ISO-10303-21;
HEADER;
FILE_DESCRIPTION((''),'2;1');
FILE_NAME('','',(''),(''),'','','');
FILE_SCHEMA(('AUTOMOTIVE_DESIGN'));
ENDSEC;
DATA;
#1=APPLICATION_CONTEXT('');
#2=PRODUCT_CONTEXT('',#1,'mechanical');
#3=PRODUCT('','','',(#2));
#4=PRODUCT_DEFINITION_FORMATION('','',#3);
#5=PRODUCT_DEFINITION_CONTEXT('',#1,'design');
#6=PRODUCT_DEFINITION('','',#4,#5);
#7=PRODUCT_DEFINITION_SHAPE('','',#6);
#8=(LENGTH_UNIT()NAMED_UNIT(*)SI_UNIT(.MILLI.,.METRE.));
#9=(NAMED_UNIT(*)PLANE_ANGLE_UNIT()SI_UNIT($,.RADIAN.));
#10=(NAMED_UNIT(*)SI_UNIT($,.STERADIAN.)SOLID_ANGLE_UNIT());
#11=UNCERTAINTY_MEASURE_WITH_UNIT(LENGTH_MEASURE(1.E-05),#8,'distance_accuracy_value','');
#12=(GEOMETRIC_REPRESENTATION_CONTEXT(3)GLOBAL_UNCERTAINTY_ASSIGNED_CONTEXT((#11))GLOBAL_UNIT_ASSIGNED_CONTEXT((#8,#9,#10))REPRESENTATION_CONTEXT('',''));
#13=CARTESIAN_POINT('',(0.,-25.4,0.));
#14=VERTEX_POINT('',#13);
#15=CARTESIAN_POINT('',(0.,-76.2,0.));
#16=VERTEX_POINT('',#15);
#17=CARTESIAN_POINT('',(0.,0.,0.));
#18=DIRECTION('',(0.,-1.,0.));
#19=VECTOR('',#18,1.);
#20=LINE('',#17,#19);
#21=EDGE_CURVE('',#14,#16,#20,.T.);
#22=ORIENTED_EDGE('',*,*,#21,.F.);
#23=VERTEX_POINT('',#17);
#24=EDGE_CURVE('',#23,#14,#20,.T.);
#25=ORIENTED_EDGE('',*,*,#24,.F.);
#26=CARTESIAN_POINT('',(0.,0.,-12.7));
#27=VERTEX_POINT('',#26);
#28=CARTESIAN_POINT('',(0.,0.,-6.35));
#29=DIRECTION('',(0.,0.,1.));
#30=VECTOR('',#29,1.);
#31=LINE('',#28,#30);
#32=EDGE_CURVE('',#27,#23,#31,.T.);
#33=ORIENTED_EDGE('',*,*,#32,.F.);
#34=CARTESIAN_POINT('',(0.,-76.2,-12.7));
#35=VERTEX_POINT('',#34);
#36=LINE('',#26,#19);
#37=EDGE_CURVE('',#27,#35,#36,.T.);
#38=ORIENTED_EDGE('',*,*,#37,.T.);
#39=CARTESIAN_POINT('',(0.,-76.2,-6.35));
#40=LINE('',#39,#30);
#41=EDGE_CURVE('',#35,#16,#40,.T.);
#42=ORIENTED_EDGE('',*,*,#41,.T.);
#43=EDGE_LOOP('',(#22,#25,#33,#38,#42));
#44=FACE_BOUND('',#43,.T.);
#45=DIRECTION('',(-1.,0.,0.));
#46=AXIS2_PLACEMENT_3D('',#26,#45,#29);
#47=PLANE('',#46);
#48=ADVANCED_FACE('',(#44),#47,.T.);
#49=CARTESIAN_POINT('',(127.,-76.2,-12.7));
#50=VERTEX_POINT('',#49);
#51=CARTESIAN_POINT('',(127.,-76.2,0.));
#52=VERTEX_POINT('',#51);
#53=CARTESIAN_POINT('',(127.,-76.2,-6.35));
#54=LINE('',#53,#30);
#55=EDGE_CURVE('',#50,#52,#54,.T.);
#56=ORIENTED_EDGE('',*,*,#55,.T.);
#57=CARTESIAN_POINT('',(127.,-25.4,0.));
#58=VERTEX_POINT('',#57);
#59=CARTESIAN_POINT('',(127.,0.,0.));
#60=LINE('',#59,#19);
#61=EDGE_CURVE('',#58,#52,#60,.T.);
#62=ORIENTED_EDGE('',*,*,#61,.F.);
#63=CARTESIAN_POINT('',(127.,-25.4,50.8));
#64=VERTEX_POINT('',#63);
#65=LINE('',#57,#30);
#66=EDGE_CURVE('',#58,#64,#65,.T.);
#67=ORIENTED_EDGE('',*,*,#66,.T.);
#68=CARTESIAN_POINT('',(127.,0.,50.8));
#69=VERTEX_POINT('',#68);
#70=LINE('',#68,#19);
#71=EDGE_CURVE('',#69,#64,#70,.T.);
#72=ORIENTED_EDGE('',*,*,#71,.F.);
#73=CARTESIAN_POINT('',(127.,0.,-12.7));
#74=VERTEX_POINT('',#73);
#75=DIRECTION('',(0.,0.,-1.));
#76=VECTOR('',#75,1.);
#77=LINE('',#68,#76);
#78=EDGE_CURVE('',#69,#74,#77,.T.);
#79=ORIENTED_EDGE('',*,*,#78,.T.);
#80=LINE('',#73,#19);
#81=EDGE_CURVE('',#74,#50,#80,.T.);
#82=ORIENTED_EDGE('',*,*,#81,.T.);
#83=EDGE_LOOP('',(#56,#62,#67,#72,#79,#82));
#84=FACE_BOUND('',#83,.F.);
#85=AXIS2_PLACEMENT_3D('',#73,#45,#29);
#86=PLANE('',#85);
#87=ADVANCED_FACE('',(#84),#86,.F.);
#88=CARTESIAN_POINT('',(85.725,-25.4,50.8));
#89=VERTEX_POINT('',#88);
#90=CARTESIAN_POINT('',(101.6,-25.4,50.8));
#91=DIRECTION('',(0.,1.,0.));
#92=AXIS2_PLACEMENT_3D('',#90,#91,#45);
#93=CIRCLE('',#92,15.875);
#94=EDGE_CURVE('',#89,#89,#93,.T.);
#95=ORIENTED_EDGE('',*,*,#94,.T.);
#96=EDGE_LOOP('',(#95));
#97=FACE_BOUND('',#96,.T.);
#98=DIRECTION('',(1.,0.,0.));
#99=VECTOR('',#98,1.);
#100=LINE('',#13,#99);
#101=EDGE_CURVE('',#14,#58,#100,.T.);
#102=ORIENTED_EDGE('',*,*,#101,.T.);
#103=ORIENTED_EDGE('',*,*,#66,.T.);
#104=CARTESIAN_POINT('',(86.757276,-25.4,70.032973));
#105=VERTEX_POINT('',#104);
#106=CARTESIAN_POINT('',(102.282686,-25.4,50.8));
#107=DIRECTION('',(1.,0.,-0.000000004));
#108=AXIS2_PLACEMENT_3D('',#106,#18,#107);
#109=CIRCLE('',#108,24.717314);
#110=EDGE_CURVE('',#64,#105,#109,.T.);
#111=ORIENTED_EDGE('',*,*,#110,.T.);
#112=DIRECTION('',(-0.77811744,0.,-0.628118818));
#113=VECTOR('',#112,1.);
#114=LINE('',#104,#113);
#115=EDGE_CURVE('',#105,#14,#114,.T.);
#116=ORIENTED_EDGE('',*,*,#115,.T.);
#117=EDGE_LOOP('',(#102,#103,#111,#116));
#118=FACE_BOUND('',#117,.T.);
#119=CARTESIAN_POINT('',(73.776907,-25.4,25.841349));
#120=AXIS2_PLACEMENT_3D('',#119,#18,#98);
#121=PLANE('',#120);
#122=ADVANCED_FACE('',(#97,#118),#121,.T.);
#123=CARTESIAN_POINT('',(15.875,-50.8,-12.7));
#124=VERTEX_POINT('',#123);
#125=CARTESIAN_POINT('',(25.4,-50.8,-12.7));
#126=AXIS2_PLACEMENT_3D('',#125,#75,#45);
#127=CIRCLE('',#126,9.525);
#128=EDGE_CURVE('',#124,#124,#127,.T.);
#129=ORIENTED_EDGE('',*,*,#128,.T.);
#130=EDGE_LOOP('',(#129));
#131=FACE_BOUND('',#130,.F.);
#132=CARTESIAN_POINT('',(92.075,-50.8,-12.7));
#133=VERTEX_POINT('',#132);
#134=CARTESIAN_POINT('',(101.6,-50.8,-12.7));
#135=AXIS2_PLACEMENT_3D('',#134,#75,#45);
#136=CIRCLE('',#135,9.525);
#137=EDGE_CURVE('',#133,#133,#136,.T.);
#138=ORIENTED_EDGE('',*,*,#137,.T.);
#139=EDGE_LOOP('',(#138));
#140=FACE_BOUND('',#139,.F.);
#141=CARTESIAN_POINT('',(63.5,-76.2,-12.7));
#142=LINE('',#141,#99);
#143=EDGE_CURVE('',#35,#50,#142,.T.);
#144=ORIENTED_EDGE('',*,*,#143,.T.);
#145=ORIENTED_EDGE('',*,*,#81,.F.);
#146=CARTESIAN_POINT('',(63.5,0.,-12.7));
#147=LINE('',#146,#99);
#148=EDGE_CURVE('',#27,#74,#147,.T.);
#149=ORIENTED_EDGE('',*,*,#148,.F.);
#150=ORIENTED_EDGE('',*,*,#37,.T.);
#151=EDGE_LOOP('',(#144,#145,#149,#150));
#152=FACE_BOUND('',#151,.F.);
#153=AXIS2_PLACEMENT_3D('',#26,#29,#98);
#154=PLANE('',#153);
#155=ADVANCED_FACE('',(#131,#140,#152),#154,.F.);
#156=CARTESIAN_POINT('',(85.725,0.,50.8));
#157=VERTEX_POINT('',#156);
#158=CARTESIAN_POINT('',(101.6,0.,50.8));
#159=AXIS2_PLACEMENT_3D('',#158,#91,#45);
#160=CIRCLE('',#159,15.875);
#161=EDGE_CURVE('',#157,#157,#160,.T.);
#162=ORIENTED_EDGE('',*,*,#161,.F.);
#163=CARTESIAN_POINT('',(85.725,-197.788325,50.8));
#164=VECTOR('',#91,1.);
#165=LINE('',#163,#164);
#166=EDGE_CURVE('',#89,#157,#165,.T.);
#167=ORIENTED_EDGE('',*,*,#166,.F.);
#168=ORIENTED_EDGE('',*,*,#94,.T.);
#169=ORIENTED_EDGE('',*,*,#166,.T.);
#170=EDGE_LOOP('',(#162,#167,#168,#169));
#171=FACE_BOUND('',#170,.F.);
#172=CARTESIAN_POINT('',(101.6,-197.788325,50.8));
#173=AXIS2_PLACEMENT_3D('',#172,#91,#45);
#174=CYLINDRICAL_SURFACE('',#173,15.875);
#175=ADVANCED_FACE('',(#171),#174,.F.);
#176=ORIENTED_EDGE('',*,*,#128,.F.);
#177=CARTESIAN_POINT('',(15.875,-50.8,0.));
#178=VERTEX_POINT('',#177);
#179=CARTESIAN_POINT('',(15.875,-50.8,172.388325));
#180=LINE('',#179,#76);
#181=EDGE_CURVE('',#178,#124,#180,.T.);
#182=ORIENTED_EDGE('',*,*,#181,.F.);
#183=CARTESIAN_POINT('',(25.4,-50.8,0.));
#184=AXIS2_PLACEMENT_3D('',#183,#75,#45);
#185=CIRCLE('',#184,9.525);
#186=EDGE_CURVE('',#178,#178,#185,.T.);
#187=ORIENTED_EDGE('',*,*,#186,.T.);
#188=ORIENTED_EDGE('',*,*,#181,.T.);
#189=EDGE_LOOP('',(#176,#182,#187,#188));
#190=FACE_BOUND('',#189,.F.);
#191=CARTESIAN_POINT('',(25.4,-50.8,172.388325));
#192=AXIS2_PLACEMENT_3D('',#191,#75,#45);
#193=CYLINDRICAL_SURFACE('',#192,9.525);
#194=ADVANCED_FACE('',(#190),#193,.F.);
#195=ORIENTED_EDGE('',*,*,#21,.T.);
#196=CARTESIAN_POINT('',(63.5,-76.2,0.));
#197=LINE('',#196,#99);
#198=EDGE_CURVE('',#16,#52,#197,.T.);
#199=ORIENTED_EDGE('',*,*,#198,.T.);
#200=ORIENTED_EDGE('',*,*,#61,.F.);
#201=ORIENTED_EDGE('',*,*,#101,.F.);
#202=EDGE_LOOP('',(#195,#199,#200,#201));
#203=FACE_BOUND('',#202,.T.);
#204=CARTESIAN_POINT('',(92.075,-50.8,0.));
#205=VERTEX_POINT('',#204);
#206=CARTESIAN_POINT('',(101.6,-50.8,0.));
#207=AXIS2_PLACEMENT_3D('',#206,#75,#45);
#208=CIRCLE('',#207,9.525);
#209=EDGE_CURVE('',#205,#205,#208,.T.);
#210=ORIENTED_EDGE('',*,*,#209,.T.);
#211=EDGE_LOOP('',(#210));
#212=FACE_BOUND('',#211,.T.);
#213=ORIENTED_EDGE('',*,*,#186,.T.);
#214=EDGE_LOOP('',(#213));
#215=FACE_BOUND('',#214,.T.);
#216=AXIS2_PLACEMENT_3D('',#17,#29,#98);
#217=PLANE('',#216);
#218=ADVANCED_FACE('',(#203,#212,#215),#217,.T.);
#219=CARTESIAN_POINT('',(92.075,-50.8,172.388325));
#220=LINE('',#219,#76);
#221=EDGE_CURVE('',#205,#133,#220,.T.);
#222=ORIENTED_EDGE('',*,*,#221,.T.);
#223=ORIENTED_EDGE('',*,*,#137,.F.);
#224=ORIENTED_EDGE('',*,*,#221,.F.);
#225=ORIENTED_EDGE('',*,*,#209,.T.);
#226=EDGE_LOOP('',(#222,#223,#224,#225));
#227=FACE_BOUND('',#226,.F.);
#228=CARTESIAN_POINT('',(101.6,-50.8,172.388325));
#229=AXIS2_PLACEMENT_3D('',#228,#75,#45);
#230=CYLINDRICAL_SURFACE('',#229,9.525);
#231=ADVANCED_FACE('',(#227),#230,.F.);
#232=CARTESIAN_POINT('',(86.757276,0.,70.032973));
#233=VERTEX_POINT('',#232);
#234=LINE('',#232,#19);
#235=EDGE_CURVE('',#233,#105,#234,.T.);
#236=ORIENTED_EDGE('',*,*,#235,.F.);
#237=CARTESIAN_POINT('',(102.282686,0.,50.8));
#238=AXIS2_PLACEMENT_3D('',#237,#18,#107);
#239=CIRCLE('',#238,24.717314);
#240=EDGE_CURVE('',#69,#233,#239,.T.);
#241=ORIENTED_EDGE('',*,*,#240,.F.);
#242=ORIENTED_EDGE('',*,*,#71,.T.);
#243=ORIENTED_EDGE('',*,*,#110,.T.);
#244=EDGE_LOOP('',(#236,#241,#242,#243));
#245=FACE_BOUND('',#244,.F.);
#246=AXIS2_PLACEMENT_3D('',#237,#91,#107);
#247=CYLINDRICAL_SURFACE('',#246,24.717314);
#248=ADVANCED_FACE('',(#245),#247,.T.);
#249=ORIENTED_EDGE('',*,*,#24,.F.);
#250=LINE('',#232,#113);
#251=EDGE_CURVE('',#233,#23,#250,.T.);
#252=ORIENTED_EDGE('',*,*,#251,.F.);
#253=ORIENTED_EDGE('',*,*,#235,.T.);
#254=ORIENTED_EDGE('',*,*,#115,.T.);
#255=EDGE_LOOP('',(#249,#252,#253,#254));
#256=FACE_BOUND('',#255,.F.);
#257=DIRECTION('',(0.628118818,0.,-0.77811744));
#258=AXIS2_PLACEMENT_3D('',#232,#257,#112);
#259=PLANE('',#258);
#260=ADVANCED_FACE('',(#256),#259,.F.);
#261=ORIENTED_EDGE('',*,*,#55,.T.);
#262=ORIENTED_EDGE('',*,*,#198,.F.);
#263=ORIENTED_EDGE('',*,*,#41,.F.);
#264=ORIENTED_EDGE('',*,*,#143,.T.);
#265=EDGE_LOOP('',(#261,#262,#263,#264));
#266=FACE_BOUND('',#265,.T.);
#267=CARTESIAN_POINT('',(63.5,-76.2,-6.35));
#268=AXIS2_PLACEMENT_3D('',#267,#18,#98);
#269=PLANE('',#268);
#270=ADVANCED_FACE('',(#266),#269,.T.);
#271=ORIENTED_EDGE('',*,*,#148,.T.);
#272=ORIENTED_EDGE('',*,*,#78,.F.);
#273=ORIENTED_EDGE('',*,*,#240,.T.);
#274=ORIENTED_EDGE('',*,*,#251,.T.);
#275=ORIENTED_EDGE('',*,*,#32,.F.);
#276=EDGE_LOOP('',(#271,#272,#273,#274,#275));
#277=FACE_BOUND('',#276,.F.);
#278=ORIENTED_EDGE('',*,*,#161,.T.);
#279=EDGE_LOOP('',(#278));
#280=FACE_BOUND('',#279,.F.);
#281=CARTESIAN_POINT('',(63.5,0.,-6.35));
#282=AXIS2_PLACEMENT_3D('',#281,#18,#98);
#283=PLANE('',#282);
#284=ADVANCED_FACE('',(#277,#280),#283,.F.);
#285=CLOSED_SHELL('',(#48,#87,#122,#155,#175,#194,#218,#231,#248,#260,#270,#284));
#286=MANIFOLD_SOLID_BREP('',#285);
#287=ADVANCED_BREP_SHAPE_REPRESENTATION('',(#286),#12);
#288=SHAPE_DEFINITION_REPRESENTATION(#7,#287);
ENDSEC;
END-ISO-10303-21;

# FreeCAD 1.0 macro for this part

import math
import FreeCAD as App
import Part
import Sketcher
from FreeCAD import Vector
Q = App.Units.Quantity


def add_polygon(sketch, points):
    """Adds a closed chain of lines whose ends are joined by coincident constraints."""
    first, n = sketch.GeometryCount, len(points)
    for a, b in zip(points, points[1:] + points[:1]):
        sketch.addGeometry(Part.LineSegment(App.Vector(*a, 0), App.Vector(*b, 0)), False)
    for i in range(n):
        sketch.addConstraint(Sketcher.Constraint("Coincident", first + i, 2, first + (i + 1) % n, 1))

doc = App.newDocument("Part")
params = doc.addObject("Spreadsheet::Sheet", "Params")
for row, (alias, value) in enumerate([
    ("sketch1_width", "5 in"),
    ("sketch1_height", "2 in"),
    ("pad1_length", "1 in"),
    ("sketch2_width", "5 in"),
    ("sketch2_height", "0.5 in"),
    ("pad2_length", "3 in"),
    ("sketch3_diameter", "1.25 in"),
    ("hole_diameter", "1.25 in"),
    ("sketch4_diameter", "0.75 in"),
    ("hole2_diameter", "0.75 in"),
    ("sketch5_diameter", "0.75 in"),
    ("hole3_diameter", "0.75 in"),
], start=1):
    params.set(f"A{row}", alias)
    params.set(f"B{row}", "=" + value)
    params.setAlias(f"B{row}", alias)

body = doc.addObject("PartDesign::Body", "Body")

# Sketch on XZ plane
sketch1 = body.newObject("Sketcher::SketchObject", "Sketch")
sketch1.AttachmentSupport = (doc.getObject("XZ_Plane"), [""])
sketch1.MapMode = "FlatFace"
sketch1.addGeometry([
    Part.LineSegment(Vector(87, 70, 0), Vector(0, 0, 0)),
    Part.LineSegment(Vector(0, 0, 0), Vector(127, 0, 0)),
    Part.LineSegment(Vector(127, 0, 0), Vector(127, 51, 0)),
    Part.ArcOfCircle(Part.Circle(Vector(102, 51, 0), Vector(0, 0, 1), 25), math.radians(0), math.radians(129)),
], False)
sketch1.addConstraint([
    Sketcher.Constraint("Coincident", 0, 2, 1, 1),
    Sketcher.Constraint("Coincident", 1, 2, 2, 1),
    Sketcher.Constraint("Tangent", 2, 2, 3, 1),
    Sketcher.Constraint("Tangent", 3, 2, 0, 1),
    Sketcher.Constraint("Horizontal", 1),
    Sketcher.Constraint("Vertical", 2),
    Sketcher.Constraint("Coincident", 0, 2, -1, 1),
    Sketcher.Constraint("DistanceX", 1, 1, 1, 2, Q("5 in")),
    Sketcher.Constraint("DistanceY", 2, 1, 2, 2, Q("2 in")),
    Sketcher.Constraint("Radius", 3, Q("24.717314 mm")),
])
sketch1.setExpression("Constraints[7]", "Params.sketch1_width")
sketch1.setExpression("Constraints[8]", "Params.sketch1_height")
pad1 = body.newObject("PartDesign::Pad", "Pad")
pad1.Profile = sketch1
pad1.setExpression("Length", "Params.pad1_length")

# Sketch on XZ plane
sketch2 = body.newObject("Sketcher::SketchObject", "Sketch001")
sketch2.AttachmentSupport = (doc.getObject("XZ_Plane"), [""])
sketch2.MapMode = "FlatFace"
add_polygon(sketch2, [(0, 0), (0, -13), (127, -13), (127, 0)])  # lines 0-3
sketch2.addConstraint([
    Sketcher.Constraint("Vertical", 0),
    Sketcher.Constraint("Horizontal", 1),
    Sketcher.Constraint("Vertical", 2),
    Sketcher.Constraint("Horizontal", 3),
    Sketcher.Constraint("Coincident", 3, 2, -1, 1),
    Sketcher.Constraint("DistanceX", 1, 1, 1, 2, Q("5 in")),
    Sketcher.Constraint("DistanceY", 0, 2, 0, 1, Q("0.5 in")),
])
sketch2.setExpression("Constraints[9]", "Params.sketch2_width")
sketch2.setExpression("Constraints[10]", "Params.sketch2_height")
pad2 = body.newObject("PartDesign::Pad", "Pad001")
pad2.Profile = sketch2
pad2.setExpression("Length", "Params.pad2_length")

# Sketch on XZ plane
sketch3 = body.newObject("Sketcher::SketchObject", "Sketch002")
sketch3.AttachmentSupport = (doc.getObject("XZ_Plane"), [""])
sketch3.MapMode = "FlatFace"
sketch3.AttachmentOffset = App.Placement(Vector(0, 0, 1 * 25.4), App.Rotation())
sketch3.addGeometry(Part.Circle(Vector(102, 51, 0), Vector(0, 0, 1), 16), False)
sketch3.addConstraint([
    Sketcher.Constraint("Diameter", 0, Q("1.25 in")),
    Sketcher.Constraint("DistanceX", -1, 1, 0, 3, Q("4 in")),
    Sketcher.Constraint("DistanceY", -1, 1, 0, 3, Q("2 in")),
])
sketch3.setExpression("Constraints[0]", "Params.sketch3_diameter")
doc.recompute()
hole = body.newObject("PartDesign::Hole", "Hole")
hole.Profile = sketch3
hole.ThreadType = "None"
hole.setExpression("Diameter", "Params.hole_diameter")
hole.DepthType = "ThroughAll"

# Sketch on XY plane
sketch4 = body.newObject("Sketcher::SketchObject", "Sketch003")
sketch4.AttachmentSupport = (doc.getObject("XY_Plane"), [""])
sketch4.MapMode = "FlatFace"
sketch4.addGeometry(Part.Circle(Vector(25, -51, 0), Vector(0, 0, 1), 10), False)
sketch4.addConstraint([
    Sketcher.Constraint("Diameter", 0, Q("0.75 in")),
    Sketcher.Constraint("DistanceX", -1, 1, 0, 3, Q("1 in")),
    Sketcher.Constraint("DistanceY", 0, 3, -1, 1, Q("2 in")),
])
sketch4.setExpression("Constraints[0]", "Params.sketch4_diameter")
doc.recompute()
hole2 = body.newObject("PartDesign::Hole", "Hole001")
hole2.Profile = sketch4
hole2.ThreadType = "None"
hole2.setExpression("Diameter", "Params.hole2_diameter")
hole2.DepthType = "ThroughAll"

# Sketch on XY plane
sketch5 = body.newObject("Sketcher::SketchObject", "Sketch004")
sketch5.AttachmentSupport = (doc.getObject("XY_Plane"), [""])
sketch5.MapMode = "FlatFace"
sketch5.addGeometry(Part.Circle(Vector(102, -51, 0), Vector(0, 0, 1), 10), False)
sketch5.addConstraint([
    Sketcher.Constraint("Diameter", 0, Q("0.75 in")),
    Sketcher.Constraint("DistanceX", -1, 1, 0, 3, Q("4 in")),
    Sketcher.Constraint("DistanceY", 0, 3, -1, 1, Q("2 in")),
])
sketch5.setExpression("Constraints[0]", "Params.sketch5_diameter")
doc.recompute()
hole3 = body.newObject("PartDesign::Hole", "Hole002")
hole3.Profile = sketch5
hole3.ThreadType = "None"
hole3.setExpression("Diameter", "Params.hole3_diameter")
hole3.DepthType = "ThroughAll"

doc.recompute()
